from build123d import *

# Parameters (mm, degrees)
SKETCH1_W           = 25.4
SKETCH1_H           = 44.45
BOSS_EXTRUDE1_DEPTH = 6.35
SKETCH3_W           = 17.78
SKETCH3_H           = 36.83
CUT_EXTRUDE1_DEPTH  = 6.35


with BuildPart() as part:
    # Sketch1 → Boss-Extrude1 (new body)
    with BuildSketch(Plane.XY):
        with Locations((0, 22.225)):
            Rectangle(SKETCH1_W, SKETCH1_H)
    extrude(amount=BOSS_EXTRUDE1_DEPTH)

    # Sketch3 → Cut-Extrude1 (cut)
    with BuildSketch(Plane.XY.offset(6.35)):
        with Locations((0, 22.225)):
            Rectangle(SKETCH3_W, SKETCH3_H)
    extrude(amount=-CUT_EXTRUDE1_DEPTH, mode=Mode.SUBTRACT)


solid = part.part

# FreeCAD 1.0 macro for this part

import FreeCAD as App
import Part
import Sketcher

V = App.Vector
Q = App.Units.Quantity


def add_polygon(sketch, points):
    """Adds a closed chain of lines whose ends are joined by coincident constraints."""
    first, n = sketch.GeometryCount, len(points)
    for a, b in zip(points, points[1:] + points[:1]):
        sketch.addGeometry(Part.LineSegment(App.Vector(*a, 0), App.Vector(*b, 0)), False)
    for i in range(n):
        sketch.addConstraint(Sketcher.Constraint("Coincident", first + i, 2, first + (i + 1) % n, 1))

doc = App.newDocument("Part")
body = doc.addObject("PartDesign::Body", "Body")

# Sketch on XY plane
sketch1 = doc.addObject("Sketcher::SketchObject", "Sketch")
body.addObject(sketch1)
sketch1.AttachmentSupport = (doc.XY_Plane, [""])
sketch1.MapMode = "FlatFace"
add_polygon(sketch1, [(-12.7, 44.45), (-12.7, 0), (12.7, 0), (12.7, 44.45)])  # lines 0-3
sketch1.addConstraint(Sketcher.Constraint("Vertical", 0))
sketch1.addConstraint(Sketcher.Constraint("Horizontal", 1))
sketch1.addConstraint(Sketcher.Constraint("Vertical", 2))
sketch1.addConstraint(Sketcher.Constraint("Horizontal", 3))
sketch1.addConstraint(Sketcher.Constraint("Symmetric", 0, 2, 1, 2, -1, 1))
sketch1.addConstraint(Sketcher.Constraint("DistanceX", 1, 1, 1, 2, Q("1 in")))
sketch1.addConstraint(Sketcher.Constraint("DistanceY", 0, 2, 0, 1, Q("1.75 in")))
pad1 = doc.addObject("PartDesign::Pad", "Pad")
body.addObject(pad1)
pad1.Profile = sketch1
pad1.Length = Q("0.25 in")

# Sketch on XY plane
sketch2 = doc.addObject("Sketcher::SketchObject", "Sketch001")
body.addObject(sketch2)
sketch2.AttachmentSupport = (doc.XY_Plane, [""])
sketch2.MapMode = "FlatFace"
sketch2.AttachmentOffset = App.Placement(V(0, 0, 0.25 * 25.4), App.Rotation())
add_polygon(sketch2, [(-8.89, 40.64), (-8.89, 3.81), (8.89, 3.81), (8.89, 40.64)])  # lines 0-3
sketch2.addConstraint(Sketcher.Constraint("Vertical", 0))
sketch2.addConstraint(Sketcher.Constraint("Horizontal", 1))
sketch2.addConstraint(Sketcher.Constraint("Vertical", 2))
sketch2.addConstraint(Sketcher.Constraint("Horizontal", 3))
sketch2.addConstraint(Sketcher.Constraint("DistanceX", 1, 1, 1, 2, Q("0.7 in")))
sketch2.addConstraint(Sketcher.Constraint("DistanceY", 0, 2, 0, 1, Q("1.45 in")))
sketch2.addConstraint(Sketcher.Constraint("DistanceY", -1, 1, 2, 2, Q("1.6 in")))
sketch2.addConstraint(Sketcher.Constraint("DistanceX", 0, 2, -1, 1, Q("0.35 in")))
pocket1 = doc.addObject("PartDesign::Pocket", "Pocket")
body.addObject(pocket1)
pocket1.Profile = sketch2
pocket1.Length = Q("0.25 in")

doc.recompute()
